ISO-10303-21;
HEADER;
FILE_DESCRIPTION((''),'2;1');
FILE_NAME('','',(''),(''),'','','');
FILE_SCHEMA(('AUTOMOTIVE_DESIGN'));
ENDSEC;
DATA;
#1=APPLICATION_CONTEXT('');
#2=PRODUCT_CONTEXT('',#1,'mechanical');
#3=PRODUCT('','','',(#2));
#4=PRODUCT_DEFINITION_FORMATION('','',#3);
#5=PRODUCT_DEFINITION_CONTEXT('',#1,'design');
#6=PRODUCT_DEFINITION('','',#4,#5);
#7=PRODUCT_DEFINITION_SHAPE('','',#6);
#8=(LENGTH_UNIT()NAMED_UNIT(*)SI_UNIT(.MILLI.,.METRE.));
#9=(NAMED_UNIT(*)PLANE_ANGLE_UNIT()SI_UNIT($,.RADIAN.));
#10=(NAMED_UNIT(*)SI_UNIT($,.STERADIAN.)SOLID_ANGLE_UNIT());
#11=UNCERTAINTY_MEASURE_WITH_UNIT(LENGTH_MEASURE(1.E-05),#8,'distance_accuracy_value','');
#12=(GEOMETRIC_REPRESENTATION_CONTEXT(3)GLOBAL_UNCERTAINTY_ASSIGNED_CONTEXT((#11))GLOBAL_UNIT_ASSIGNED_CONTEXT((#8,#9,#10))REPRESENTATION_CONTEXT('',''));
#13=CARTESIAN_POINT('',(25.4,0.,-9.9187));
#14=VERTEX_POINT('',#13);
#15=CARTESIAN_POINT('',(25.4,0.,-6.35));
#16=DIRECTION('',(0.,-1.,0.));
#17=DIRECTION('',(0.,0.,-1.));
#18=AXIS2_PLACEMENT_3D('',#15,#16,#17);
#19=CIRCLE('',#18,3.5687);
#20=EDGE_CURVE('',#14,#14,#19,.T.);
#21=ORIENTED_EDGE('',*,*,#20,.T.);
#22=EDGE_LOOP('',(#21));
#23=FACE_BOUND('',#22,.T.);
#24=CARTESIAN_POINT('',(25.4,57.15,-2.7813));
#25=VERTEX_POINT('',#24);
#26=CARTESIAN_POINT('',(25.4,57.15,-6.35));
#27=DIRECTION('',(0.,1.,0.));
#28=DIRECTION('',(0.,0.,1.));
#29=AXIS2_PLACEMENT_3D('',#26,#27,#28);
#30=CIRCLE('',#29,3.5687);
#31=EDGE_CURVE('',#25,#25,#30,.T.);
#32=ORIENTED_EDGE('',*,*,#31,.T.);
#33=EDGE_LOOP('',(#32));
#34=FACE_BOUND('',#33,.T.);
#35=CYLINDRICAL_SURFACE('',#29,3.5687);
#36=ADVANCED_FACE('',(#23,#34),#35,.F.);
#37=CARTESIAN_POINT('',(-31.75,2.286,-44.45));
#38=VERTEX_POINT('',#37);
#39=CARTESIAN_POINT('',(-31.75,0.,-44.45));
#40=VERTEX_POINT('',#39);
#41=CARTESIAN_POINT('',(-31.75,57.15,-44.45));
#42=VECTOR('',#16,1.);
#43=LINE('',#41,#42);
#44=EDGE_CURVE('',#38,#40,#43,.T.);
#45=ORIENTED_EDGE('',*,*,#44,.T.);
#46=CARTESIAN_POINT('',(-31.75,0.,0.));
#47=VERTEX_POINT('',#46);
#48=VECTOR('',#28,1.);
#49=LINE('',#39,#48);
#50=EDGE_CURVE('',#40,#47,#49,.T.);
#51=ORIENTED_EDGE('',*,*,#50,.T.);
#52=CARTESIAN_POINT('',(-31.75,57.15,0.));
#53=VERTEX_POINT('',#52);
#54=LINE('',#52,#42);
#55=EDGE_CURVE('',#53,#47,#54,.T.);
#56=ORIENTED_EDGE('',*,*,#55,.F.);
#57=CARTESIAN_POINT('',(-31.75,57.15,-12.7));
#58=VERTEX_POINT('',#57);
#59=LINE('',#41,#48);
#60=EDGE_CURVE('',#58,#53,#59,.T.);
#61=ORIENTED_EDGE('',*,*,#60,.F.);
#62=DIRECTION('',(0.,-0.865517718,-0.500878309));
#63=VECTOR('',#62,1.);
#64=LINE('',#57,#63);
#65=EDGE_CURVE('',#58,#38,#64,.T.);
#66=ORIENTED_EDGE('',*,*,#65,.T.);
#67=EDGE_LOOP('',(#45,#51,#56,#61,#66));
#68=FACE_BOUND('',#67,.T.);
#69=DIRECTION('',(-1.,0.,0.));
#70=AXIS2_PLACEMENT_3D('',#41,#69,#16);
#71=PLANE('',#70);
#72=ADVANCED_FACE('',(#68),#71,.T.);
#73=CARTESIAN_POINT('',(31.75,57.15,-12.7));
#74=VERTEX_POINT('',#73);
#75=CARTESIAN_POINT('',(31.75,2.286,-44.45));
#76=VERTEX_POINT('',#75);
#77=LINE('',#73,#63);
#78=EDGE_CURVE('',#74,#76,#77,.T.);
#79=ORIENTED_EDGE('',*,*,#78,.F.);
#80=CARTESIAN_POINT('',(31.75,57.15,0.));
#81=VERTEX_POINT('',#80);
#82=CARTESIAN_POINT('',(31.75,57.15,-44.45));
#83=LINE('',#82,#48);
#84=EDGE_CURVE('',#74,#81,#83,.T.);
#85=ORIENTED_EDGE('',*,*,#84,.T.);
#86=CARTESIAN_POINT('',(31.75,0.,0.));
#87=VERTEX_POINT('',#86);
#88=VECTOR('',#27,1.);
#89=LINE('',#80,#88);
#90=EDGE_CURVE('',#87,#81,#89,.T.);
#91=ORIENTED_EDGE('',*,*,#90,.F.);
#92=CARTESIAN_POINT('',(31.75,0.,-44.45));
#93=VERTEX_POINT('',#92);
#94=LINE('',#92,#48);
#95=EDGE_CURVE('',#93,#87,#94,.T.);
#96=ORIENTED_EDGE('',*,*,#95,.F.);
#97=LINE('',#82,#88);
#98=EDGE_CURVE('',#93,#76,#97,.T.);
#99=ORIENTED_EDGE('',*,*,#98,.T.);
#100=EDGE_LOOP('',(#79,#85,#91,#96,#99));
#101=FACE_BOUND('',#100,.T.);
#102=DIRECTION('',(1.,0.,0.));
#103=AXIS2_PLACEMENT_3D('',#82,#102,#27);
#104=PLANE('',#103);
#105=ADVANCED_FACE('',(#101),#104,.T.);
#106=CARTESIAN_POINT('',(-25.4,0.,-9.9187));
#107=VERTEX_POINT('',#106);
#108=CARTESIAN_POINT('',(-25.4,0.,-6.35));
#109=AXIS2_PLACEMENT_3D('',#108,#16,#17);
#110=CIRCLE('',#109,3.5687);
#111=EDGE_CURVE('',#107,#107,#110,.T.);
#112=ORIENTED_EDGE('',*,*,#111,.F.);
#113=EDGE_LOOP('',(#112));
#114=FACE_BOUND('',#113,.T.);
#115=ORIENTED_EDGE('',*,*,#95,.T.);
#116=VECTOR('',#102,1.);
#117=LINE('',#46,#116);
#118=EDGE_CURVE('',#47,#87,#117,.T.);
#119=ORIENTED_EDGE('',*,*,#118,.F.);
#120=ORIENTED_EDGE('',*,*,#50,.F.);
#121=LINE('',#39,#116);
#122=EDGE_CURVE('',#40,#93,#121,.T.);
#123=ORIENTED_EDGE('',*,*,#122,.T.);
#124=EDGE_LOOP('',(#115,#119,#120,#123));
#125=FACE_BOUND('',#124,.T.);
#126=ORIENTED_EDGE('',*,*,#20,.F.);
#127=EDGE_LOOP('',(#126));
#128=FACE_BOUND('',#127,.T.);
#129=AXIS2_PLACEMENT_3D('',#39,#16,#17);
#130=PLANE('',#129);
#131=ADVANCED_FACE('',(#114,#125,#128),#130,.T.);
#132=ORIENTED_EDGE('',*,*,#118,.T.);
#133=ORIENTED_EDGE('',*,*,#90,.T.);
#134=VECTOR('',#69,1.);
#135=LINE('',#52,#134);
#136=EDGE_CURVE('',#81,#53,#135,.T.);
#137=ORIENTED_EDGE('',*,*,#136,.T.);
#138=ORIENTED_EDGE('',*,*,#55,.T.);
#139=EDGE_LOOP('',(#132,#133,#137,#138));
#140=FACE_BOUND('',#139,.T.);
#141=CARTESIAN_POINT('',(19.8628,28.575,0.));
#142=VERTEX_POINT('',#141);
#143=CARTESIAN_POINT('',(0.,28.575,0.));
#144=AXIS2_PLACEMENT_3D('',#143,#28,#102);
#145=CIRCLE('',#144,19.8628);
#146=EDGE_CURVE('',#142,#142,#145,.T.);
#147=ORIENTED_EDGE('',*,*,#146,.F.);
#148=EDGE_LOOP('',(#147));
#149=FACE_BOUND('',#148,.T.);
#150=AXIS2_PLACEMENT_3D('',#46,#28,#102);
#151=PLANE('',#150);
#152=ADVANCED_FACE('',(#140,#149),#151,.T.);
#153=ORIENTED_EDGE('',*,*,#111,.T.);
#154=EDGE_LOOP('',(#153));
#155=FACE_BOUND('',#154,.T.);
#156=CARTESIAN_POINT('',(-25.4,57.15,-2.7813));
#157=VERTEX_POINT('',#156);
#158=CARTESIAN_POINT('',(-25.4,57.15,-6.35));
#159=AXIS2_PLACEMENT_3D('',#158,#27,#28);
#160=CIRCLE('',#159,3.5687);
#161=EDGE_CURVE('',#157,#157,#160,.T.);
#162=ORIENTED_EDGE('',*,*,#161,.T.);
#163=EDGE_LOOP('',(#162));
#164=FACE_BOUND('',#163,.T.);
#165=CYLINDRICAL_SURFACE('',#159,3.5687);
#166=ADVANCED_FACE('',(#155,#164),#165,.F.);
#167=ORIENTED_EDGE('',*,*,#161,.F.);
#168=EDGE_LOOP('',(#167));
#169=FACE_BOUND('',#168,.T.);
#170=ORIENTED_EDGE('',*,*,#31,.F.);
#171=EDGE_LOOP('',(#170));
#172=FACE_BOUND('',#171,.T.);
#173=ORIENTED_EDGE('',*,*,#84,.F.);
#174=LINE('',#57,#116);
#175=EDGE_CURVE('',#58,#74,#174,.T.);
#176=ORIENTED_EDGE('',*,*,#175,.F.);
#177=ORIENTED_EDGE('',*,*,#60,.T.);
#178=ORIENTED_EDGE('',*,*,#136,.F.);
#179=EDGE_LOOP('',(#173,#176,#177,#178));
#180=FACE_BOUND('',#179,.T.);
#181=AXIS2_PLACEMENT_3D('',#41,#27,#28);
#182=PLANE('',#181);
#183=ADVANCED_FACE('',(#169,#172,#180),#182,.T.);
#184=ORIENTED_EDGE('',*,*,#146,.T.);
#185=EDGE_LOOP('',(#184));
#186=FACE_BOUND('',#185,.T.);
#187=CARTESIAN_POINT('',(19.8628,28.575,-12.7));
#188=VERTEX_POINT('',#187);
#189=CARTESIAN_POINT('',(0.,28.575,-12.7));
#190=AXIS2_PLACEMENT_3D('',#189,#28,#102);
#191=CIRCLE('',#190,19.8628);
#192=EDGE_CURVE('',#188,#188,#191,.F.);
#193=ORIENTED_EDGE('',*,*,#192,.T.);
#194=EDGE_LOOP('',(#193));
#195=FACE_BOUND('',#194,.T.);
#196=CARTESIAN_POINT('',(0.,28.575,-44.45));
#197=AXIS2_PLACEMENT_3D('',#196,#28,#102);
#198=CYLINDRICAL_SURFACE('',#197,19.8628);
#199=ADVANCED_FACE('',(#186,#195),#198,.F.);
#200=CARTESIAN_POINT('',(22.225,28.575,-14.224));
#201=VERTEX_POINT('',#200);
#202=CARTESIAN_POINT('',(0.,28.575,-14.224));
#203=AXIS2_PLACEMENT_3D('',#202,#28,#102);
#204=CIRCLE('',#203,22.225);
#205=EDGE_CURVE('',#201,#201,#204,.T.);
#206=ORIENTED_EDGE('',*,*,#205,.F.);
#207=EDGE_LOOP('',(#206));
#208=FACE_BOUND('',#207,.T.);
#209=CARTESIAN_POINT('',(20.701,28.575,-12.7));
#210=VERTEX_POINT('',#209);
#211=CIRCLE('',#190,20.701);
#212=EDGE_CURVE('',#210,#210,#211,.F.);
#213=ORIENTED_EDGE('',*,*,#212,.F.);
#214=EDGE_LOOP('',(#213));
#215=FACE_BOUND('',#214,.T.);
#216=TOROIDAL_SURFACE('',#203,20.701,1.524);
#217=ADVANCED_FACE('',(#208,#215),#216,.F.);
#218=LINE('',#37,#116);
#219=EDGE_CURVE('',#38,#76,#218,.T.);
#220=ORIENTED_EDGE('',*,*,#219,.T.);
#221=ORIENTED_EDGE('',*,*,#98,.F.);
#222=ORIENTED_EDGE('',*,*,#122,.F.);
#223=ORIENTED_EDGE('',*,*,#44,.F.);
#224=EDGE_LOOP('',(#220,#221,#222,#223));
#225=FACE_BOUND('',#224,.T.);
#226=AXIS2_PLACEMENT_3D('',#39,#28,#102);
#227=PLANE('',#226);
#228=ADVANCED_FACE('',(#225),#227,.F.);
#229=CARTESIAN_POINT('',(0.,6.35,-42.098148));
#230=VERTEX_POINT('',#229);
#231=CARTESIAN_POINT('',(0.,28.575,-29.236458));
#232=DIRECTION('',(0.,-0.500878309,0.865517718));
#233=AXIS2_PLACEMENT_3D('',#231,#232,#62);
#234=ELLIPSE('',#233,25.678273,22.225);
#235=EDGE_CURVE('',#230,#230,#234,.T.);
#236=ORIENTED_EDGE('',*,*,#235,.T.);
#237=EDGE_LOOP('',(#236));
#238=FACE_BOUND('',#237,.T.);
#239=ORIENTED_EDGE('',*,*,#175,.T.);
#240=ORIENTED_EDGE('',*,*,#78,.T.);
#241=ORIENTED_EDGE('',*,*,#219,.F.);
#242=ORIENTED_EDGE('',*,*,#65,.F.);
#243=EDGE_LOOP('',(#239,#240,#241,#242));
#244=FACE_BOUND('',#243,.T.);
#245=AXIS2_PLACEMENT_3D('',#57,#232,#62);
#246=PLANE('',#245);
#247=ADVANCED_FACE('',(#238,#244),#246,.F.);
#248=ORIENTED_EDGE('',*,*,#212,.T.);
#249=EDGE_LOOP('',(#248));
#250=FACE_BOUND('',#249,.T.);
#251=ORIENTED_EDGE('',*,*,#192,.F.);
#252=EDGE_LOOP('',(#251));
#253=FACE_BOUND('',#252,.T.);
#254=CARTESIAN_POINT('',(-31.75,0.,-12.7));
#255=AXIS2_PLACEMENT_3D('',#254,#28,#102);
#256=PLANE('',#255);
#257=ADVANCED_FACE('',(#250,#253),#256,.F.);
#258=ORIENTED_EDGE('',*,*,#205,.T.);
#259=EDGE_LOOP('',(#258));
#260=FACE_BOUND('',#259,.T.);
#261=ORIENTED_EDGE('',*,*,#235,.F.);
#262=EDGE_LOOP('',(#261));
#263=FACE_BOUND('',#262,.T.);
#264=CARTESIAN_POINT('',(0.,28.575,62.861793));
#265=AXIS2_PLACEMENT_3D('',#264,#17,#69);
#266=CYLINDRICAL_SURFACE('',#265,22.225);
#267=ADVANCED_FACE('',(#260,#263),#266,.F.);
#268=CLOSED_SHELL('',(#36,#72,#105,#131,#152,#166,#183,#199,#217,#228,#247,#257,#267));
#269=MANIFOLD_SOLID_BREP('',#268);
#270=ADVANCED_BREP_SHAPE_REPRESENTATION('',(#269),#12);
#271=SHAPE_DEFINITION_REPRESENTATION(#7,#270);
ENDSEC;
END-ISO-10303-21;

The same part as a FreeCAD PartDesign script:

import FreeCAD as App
import Part
import Sketcher
Q = App.Units.Quantity


def edges_at(feature, points):
    """Names of the edges that pass closest to the given points."""
    edges = feature.Shape.Edges
    near = lambda p: min(range(len(edges)), key=lambda i: edges[i].distToShape(Part.Vertex(*p))[0])
    return sorted({f"Edge{near(p) + 1}" for p in points})


def add_polygon(sketch, points):
    """Adds a closed chain of lines whose ends are joined by coincident constraints."""
    first, n = sketch.GeometryCount, len(points)
    for a, b in zip(points, points[1:] + points[:1]):
        sketch.addGeometry(Part.LineSegment(App.Vector(*a, 0), App.Vector(*b, 0)), False)
    for i in range(n):
        sketch.addConstraint(Sketcher.Constraint("Coincident", first + i, 2, first + (i + 1) % n, 1))

doc = App.newDocument("Part")
body = doc.addObject("PartDesign::Body", "Body")

sketch1 = doc.addObject("Sketcher::SketchObject", "Sketch")
body.addObject(sketch1)
sketch1.AttachmentSupport = (doc.XY_Plane, [""])
sketch1.MapMode = "FlatFace"
add_polygon(sketch1, [(-32, 57), (-32, 0), (32, 0), (32, 57)])
sketch1.addGeometry(Part.Circle(App.Vector(0, 29, 0), App.Vector(0, 0, 1), 20), False)
sketch1.addConstraint([
    Sketcher.Constraint("Vertical", 0),
    Sketcher.Constraint("Horizontal", 1),
    Sketcher.Constraint("Vertical", 2),
    Sketcher.Constraint("Horizontal", 3),
    Sketcher.Constraint("Symmetric", 0, 2, 1, 2, -1, 1),
    Sketcher.Constraint("PointOnObject", 4, 3, -2),
    Sketcher.Constraint("Diameter", 4, Q("1.564 in")),
    Sketcher.Constraint("DistanceX", 1, 1, 1, 2, Q("2.5 in")),
    Sketcher.Constraint("DistanceY", 0, 2, 0, 1, Q("2.25 in")),
    Sketcher.Constraint("DistanceY", -1, 1, 4, 3, Q("1.125 in")),
])
pad1 = doc.addObject("PartDesign::Pad", "Pad")
body.addObject(pad1)
pad1.Profile = sketch1
pad1.Length = Q("1.75 in")
pad1.Reversed = True

sketch2 = doc.addObject("Sketcher::SketchObject", "Sketch001")
body.addObject(sketch2)
sketch2.AttachmentSupport = (doc.YZ_Plane, [""])
sketch2.MapMode = "FlatFace"
sketch2.AttachmentOffset = App.Placement(App.Vector(0, 0, 1.25 * 25.4), App.Rotation())
add_polygon(sketch2, [(57, -13), (2, -44), (57, -44)])
sketch2.addConstraint([
    Sketcher.Constraint("Horizontal", 1),
    Sketcher.Constraint("Vertical", 2),
    Sketcher.Constraint("DistanceX", 1, 1, 1, 2, Q("2.16 in")),
    Sketcher.Constraint("DistanceY", 2, 1, 2, 2, Q("1.25 in")),
    Sketcher.Constraint("DistanceY", 2, 2, -1, 1, Q("0.5 in")),
    Sketcher.Constraint("DistanceX", -1, 1, 0, 2, Q("0.09 in")),
])
pocket1 = doc.addObject("PartDesign::Pocket", "Pocket")
body.addObject(pocket1)
pocket1.Profile = sketch2
pocket1.Type = "ThroughAll"

sketch3 = doc.addObject("Sketcher::SketchObject", "Sketch002")
body.addObject(sketch3)
sketch3.AttachmentSupport = (doc.XY_Plane, [""])
sketch3.MapMode = "FlatFace"
sketch3.AttachmentOffset = App.Placement(App.Vector(0, 0, -1.75 * 25.4), App.Rotation())
sketch3.addGeometry(Part.Circle(App.Vector(0, 29, 0), App.Vector(0, 0, 1), 22), False)
sketch3.addConstraint([
    Sketcher.Constraint("PointOnObject", 0, 3, -2),
    Sketcher.Constraint("Diameter", 0, Q("1.75 in")),
    Sketcher.Constraint("DistanceY", -1, 1, 0, 3, Q("1.125 in")),
])
pocket2 = doc.addObject("PartDesign::Pocket", "Pocket001")
body.addObject(pocket2)
pocket2.Profile = sketch3
pocket2.Length = Q("1.25 in")
pocket2.Reversed = True
doc.recompute()

fillet = doc.addObject("PartDesign::Fillet", "Fillet")
body.addObject(fillet)
fillet.Base = (pocket2, edges_at(pocket2, [(0, 50.8, -12.7)]))
fillet.Radius = Q("0.06 in")

sketch4 = doc.addObject("Sketcher::SketchObject", "Sketch003")
body.addObject(sketch4)
sketch4.AttachmentSupport = (doc.XZ_Plane, [""])
sketch4.MapMode = "FlatFace"
sketch4.AttachmentOffset = App.Placement(App.Vector(0, 0, -2.25 * 25.4), App.Rotation())
sketch4.addGeometry([
    Part.Circle(App.Vector(-25.4, -6.3, 0), App.Vector(0, 0, 1), 3.6),
    Part.Circle(App.Vector(25.4, -6.3, 0), App.Vector(0, 0, 1), 3.6),
], False)
sketch4.addConstraint([
    Sketcher.Constraint("Equal", 0, 1),
    Sketcher.Constraint("Symmetric", 0, 3, 1, 3, -2),
    Sketcher.Constraint("Diameter", 0, Q("0.281 in")),
    Sketcher.Constraint("DistanceX", 0, 3, -1, 1, Q("1 in")),
    Sketcher.Constraint("DistanceY", 0, 3, -1, 1, Q("0.25 in")),
])
doc.recompute()
hole = doc.addObject("PartDesign::Hole", "Hole")
body.addObject(hole)
hole.Profile = sketch4
hole.ThreadType = "None"
hole.Diameter = Q("0.281 in")
hole.DepthType = "Dimension"
hole.Depth = Q("2.25 in")
hole.DrillPoint = "Flat"
hole.Reversed = True

doc.recompute()
